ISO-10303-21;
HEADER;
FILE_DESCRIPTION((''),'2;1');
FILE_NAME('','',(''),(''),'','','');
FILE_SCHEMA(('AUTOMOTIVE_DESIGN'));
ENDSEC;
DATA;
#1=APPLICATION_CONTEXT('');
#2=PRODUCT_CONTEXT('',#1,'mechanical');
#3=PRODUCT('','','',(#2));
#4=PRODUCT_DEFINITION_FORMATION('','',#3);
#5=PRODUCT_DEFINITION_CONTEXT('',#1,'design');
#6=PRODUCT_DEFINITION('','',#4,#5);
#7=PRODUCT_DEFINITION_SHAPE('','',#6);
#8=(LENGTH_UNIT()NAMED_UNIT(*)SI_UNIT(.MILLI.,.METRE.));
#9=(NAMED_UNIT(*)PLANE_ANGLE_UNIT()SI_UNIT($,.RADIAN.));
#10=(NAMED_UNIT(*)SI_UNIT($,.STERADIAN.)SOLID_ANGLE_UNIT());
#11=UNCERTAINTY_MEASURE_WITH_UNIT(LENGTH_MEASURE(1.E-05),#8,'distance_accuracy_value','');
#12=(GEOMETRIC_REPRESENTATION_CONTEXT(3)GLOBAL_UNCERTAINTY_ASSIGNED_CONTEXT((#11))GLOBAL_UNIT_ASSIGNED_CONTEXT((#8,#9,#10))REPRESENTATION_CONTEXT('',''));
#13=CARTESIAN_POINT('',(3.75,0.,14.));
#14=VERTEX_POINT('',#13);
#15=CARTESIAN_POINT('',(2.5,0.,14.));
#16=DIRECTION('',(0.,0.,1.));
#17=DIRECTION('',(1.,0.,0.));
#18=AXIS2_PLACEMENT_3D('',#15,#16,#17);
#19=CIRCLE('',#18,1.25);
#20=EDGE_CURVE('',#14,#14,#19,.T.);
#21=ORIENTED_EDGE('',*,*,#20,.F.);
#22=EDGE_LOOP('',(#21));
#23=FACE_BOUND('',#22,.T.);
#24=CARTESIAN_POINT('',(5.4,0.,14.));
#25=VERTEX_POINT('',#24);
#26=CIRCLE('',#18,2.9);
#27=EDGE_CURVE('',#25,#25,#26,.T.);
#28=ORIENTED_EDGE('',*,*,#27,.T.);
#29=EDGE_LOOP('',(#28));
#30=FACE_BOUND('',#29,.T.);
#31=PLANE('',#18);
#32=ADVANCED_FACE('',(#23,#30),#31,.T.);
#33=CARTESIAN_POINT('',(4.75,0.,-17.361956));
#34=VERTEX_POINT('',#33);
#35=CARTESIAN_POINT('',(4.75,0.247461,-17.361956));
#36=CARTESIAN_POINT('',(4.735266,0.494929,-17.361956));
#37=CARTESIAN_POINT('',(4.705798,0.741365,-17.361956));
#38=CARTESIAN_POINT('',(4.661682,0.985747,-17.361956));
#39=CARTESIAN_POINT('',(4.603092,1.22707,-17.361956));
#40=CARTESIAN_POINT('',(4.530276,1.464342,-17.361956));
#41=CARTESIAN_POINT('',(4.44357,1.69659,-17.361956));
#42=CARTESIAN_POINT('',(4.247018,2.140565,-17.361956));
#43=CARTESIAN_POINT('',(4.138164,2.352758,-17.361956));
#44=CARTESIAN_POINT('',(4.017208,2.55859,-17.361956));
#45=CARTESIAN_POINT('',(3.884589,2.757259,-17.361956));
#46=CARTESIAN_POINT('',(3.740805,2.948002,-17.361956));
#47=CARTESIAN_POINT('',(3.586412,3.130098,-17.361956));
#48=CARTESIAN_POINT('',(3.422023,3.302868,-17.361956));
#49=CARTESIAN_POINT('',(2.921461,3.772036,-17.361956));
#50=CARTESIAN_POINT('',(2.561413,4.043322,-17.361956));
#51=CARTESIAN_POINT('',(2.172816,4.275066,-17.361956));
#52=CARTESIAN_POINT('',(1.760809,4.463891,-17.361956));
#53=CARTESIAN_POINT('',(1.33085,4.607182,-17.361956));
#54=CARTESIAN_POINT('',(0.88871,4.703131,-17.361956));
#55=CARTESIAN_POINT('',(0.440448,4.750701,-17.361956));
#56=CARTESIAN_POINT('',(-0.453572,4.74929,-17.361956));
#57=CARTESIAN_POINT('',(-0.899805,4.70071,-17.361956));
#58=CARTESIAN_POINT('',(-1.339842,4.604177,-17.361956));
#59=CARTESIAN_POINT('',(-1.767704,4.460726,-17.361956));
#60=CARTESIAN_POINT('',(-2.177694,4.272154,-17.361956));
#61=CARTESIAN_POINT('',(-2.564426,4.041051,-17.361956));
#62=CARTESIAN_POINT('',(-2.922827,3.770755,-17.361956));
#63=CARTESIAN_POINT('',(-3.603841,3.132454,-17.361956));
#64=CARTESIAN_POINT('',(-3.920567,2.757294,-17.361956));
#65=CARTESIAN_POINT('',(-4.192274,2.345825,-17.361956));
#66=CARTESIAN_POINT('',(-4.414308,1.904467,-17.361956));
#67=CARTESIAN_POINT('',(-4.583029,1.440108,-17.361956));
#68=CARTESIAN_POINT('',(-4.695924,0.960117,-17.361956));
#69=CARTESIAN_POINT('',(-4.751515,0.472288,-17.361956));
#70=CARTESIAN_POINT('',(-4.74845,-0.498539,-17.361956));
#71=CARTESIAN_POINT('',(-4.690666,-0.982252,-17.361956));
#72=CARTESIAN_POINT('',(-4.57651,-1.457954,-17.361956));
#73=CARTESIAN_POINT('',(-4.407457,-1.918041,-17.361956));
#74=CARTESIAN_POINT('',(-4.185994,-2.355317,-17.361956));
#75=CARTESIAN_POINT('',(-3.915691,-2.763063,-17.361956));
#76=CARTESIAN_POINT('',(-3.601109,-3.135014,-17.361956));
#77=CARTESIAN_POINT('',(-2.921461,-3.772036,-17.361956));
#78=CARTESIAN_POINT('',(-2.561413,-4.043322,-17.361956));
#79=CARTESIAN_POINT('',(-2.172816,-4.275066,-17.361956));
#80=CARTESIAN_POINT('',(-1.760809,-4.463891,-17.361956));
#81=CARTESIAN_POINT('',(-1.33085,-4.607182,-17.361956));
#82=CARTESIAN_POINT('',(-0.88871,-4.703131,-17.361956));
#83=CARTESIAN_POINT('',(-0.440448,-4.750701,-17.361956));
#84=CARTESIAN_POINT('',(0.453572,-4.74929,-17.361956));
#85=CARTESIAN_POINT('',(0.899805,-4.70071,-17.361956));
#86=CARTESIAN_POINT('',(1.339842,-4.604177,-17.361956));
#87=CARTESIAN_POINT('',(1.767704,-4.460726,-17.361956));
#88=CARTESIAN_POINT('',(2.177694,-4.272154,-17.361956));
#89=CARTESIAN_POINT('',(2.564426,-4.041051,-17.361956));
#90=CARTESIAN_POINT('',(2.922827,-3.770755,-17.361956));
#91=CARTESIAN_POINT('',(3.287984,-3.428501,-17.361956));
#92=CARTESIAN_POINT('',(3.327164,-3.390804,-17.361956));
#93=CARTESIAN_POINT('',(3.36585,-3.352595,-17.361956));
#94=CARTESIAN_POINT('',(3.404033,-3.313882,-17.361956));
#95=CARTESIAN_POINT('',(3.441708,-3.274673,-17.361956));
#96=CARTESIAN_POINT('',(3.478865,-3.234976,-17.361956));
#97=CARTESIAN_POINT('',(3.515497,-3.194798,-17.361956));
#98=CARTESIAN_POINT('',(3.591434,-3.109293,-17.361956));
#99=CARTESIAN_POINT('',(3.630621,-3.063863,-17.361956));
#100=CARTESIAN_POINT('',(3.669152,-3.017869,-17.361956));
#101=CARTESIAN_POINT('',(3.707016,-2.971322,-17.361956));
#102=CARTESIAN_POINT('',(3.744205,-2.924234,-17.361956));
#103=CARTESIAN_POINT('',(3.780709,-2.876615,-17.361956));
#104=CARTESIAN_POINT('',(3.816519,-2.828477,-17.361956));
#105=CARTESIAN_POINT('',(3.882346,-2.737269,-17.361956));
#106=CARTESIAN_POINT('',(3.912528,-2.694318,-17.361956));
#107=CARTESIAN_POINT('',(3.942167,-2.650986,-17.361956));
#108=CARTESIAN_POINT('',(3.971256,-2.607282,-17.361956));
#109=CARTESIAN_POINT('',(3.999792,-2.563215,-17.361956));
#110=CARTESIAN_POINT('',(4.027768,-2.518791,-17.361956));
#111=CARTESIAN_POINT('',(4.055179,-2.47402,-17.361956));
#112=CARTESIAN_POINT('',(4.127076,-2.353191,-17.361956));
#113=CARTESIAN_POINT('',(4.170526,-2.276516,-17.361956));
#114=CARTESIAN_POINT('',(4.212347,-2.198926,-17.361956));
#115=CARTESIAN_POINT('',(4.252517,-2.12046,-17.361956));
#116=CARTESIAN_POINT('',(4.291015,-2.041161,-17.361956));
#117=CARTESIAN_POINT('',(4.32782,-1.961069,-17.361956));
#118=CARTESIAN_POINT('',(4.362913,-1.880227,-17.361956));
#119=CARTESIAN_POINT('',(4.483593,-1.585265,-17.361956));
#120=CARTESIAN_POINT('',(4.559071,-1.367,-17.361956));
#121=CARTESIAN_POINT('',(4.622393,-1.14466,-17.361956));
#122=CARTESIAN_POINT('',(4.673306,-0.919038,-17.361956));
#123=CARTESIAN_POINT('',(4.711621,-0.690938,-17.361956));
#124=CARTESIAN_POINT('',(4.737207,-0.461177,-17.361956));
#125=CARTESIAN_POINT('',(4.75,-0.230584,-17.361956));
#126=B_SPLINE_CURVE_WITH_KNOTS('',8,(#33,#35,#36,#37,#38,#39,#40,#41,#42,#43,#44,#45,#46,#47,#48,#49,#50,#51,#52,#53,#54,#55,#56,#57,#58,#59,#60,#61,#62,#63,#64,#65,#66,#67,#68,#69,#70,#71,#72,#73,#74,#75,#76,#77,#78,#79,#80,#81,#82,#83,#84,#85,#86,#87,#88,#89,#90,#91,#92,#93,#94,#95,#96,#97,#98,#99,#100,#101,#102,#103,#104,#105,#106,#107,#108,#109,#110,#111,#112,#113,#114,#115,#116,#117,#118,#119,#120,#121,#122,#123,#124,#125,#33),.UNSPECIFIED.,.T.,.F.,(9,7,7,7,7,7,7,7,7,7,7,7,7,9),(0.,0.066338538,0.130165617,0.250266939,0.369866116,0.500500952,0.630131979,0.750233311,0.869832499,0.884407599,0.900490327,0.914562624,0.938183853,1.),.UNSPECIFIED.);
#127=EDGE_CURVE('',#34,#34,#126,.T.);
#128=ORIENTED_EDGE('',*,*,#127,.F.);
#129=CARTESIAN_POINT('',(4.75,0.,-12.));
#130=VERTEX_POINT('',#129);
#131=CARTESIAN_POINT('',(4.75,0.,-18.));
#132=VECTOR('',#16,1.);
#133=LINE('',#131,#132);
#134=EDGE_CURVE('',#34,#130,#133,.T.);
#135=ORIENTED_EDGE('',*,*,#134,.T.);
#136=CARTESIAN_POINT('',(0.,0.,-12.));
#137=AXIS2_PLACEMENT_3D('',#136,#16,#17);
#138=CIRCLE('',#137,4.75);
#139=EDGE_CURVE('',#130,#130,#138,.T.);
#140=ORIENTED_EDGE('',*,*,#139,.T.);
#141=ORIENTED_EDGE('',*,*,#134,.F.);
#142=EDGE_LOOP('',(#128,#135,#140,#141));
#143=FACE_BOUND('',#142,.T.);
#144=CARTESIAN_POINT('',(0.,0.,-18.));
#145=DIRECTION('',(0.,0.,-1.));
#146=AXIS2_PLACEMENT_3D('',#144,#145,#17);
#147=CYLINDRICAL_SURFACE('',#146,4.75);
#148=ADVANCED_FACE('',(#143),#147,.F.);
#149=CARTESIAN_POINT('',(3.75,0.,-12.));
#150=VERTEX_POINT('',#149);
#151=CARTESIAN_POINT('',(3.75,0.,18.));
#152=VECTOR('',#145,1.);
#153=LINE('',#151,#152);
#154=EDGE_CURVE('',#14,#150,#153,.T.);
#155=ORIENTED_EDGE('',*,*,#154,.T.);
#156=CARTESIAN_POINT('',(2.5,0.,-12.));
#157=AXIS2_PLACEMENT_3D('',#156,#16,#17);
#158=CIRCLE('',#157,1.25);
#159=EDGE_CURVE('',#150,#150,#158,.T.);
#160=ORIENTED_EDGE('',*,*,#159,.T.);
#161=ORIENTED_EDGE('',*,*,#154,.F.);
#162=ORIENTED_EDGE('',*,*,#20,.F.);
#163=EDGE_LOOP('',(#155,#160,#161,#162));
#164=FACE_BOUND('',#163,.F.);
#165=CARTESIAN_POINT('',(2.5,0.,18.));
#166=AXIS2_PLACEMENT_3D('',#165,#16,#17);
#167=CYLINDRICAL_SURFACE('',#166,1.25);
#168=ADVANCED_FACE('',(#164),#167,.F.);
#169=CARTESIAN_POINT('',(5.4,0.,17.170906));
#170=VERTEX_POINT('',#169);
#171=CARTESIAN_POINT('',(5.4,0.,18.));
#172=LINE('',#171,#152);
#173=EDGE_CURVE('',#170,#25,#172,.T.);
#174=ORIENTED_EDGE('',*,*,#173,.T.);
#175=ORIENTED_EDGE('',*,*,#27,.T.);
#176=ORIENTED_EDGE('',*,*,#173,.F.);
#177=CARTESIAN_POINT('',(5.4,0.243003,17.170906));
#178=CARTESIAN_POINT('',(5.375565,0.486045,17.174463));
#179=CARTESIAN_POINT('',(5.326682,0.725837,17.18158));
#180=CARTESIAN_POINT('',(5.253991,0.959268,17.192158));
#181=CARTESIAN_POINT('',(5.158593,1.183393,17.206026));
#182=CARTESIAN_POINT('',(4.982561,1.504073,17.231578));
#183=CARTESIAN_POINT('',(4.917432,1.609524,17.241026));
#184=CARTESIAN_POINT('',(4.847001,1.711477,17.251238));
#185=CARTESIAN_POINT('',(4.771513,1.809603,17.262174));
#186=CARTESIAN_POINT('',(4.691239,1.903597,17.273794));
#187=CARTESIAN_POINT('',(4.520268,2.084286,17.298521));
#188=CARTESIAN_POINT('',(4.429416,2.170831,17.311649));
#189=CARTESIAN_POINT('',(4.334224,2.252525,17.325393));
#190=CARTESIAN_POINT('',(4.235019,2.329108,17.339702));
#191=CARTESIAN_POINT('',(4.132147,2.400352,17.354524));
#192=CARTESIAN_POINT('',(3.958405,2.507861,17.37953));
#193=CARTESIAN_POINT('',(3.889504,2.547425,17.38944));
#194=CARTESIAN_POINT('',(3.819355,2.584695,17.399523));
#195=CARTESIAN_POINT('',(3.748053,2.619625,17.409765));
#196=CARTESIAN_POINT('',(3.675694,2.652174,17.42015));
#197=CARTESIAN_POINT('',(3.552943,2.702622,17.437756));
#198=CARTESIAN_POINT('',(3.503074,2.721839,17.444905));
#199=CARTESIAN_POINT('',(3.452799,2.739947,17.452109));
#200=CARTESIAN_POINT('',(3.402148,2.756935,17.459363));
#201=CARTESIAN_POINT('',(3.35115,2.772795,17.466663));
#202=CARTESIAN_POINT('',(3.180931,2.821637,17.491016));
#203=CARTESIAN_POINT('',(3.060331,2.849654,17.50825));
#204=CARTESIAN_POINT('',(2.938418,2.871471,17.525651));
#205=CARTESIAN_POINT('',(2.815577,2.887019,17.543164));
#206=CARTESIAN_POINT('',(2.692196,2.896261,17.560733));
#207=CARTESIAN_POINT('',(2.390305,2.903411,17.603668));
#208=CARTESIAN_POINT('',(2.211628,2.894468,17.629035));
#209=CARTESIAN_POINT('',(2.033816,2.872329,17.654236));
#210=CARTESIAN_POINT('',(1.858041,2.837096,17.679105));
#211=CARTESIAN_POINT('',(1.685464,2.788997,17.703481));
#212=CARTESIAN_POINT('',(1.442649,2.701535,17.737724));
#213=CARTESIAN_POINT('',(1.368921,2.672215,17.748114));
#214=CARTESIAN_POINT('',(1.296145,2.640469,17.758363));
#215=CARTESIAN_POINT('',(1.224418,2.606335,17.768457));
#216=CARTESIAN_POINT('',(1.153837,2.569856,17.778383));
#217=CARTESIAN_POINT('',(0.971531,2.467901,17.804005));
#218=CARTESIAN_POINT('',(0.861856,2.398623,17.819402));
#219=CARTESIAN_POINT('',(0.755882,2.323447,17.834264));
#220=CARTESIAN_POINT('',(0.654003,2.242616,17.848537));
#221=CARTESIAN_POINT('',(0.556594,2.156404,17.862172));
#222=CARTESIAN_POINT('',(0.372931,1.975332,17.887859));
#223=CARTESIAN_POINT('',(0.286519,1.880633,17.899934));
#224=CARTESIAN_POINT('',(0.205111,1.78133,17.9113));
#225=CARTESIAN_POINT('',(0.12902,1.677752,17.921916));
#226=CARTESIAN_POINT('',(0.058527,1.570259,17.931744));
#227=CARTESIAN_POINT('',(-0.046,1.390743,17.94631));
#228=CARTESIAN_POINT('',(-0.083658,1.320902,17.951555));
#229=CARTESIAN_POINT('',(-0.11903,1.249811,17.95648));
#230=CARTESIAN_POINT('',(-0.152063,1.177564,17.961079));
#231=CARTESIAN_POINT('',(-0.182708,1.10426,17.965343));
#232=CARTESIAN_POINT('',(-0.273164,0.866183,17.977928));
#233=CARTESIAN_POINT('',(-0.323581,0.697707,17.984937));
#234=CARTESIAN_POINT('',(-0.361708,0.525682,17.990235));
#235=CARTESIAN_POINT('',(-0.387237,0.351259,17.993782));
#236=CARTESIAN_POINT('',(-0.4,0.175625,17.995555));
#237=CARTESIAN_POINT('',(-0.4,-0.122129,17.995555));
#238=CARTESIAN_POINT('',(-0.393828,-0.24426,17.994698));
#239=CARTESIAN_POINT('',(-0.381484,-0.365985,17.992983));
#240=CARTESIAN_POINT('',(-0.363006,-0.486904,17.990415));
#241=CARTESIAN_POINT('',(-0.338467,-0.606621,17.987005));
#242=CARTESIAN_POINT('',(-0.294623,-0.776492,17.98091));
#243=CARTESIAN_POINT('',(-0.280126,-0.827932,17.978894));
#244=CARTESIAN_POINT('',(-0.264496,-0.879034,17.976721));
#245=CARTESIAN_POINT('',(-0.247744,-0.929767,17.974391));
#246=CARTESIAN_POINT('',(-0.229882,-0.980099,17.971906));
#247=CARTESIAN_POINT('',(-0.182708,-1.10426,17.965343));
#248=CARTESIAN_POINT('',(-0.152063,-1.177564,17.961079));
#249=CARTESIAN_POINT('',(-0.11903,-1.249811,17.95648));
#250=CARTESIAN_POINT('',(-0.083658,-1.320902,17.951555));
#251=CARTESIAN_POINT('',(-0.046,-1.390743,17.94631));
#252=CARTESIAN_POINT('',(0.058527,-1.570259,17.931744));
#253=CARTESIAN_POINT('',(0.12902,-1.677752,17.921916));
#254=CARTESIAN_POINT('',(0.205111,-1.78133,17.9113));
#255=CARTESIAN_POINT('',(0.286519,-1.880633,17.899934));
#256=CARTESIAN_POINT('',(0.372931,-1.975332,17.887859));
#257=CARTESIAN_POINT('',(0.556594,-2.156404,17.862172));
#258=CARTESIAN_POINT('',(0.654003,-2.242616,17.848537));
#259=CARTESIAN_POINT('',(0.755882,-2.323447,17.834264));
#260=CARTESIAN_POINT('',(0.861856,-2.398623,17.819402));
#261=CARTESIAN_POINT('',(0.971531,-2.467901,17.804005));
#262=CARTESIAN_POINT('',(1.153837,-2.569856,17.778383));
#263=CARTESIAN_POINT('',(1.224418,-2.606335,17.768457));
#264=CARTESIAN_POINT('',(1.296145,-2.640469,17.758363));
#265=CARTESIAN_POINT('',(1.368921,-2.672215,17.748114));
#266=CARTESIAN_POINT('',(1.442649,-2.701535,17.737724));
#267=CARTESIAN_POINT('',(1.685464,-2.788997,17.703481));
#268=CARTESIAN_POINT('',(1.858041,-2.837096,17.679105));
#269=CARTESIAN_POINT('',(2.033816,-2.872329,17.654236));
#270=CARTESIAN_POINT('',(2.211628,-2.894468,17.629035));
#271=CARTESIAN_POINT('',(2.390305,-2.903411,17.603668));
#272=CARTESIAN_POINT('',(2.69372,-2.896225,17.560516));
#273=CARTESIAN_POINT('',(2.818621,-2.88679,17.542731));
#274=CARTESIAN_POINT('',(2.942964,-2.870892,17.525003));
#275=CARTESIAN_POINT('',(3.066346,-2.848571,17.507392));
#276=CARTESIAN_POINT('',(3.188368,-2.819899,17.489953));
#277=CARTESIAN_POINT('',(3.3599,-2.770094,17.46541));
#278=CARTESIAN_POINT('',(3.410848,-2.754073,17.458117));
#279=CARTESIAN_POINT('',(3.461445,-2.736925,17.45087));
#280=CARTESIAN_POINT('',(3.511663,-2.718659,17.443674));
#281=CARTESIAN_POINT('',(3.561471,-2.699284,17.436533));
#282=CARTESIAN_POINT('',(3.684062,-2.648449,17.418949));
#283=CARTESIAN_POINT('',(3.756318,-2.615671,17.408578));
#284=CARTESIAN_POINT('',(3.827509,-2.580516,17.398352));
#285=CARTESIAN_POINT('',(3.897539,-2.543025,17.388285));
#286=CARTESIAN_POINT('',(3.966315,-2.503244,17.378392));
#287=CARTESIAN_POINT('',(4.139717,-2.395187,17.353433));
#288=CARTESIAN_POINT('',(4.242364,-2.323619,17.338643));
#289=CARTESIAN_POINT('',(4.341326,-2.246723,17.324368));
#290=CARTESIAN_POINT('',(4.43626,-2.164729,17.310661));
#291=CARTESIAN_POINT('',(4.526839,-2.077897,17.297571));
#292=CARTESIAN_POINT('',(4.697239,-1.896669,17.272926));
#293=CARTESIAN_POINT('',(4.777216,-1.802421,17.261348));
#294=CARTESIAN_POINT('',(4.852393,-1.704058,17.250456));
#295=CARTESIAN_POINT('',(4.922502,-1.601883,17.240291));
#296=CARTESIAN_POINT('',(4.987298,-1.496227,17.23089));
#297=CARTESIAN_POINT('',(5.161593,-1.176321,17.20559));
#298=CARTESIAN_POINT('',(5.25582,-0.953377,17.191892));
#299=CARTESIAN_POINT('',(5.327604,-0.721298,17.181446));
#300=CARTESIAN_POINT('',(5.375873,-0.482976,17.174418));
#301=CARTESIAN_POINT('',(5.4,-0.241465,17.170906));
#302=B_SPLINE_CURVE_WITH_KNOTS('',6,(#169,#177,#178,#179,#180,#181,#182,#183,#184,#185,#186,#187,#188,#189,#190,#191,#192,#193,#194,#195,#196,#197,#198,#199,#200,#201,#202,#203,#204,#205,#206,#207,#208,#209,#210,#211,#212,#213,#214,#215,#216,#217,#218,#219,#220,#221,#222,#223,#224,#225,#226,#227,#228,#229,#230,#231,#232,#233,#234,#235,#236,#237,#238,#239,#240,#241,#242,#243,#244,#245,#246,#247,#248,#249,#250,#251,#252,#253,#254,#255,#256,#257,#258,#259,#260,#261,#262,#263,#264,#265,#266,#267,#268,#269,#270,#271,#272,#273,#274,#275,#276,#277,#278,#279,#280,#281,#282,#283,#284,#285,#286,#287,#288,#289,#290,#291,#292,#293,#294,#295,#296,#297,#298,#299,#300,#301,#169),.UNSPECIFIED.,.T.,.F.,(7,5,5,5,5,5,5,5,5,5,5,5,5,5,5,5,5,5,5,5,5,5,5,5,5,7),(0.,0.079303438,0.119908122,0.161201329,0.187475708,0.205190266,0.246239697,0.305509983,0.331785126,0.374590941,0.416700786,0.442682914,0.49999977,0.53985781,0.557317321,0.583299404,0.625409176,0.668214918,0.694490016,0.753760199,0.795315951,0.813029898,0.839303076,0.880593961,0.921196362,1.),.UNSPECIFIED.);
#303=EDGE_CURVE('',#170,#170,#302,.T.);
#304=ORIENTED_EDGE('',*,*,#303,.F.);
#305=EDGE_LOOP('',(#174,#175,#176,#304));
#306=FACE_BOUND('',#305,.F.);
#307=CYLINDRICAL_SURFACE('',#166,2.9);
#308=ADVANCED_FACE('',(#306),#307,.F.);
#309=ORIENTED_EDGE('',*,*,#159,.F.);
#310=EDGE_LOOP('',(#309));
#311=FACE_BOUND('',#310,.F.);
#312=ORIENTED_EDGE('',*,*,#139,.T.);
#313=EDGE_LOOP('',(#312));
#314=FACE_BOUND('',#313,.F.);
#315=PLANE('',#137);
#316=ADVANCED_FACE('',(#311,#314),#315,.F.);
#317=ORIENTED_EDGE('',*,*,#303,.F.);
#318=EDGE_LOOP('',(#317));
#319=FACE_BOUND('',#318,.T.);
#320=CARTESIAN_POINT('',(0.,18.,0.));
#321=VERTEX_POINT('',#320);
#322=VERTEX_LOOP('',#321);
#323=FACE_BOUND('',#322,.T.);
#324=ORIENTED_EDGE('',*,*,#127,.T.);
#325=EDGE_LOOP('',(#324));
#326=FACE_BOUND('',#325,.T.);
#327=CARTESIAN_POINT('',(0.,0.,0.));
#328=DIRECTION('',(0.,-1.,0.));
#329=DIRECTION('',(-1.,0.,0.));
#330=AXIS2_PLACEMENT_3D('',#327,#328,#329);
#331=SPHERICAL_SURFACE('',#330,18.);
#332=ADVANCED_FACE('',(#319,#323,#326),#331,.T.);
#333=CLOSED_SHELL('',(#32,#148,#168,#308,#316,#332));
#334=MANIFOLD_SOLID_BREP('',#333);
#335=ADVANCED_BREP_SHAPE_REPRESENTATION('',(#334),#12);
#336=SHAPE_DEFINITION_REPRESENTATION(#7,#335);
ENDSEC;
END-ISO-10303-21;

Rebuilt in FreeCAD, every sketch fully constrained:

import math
import FreeCAD as App
import Part
import Sketcher
from FreeCAD import Vector

doc = App.newDocument("Part")
body = doc.addObject("PartDesign::Body", "Body")

sketch1 = body.newObject("Sketcher::SketchObject", "Sketch")
sketch1.AttachmentSupport = (doc.getObject("XY_Plane"), [""])
sketch1.MapMode = "FlatFace"
sketch1.addGeometry([
    Part.LineSegment(Vector(0, -18, 0), Vector(0, 18, 0)),
    Part.ArcOfCircle(Part.Circle(Vector(0, 0, 0), Vector(0, 0, 1), 18), math.radians(90), math.radians(270)),
], False)
sketch1.addConstraint([
    Sketcher.Constraint("Coincident", 0, 1, 1, 2),
    Sketcher.Constraint("Coincident", 1, 1, 0, 2),
    Sketcher.Constraint("Vertical", 0),
    Sketcher.Constraint("Coincident", 1, 3, -1, 1),
    Sketcher.Constraint("PointOnObject", 0, 1, -2),
    Sketcher.Constraint("Radius", 1, 18.0),
])
revolution = body.newObject("PartDesign::Revolution", "Revolution")
revolution.Profile = sketch1
revolution.ReferenceAxis = (sketch1, ["V_Axis"])
revolution.Angle = 360

sketch2 = body.newObject("Sketcher::SketchObject", "Sketch001")
sketch2.AttachmentSupport = (doc.getObject("XY_Plane"), [""])
sketch2.MapMode = "FlatFace"
sketch2.AttachmentOffset = App.Placement(Vector(0, 0, 18), App.Rotation())
sketch2.addGeometry(Part.Circle(Vector(2.5, 0, 0), Vector(0, 0, 1), 1.25), False)
sketch2.addConstraint([
    Sketcher.Constraint("PointOnObject", 0, 3, -1),
    Sketcher.Constraint("Diameter", 0, 2.5),
    Sketcher.Constraint("DistanceX", -1, 1, 0, 3, 2.5),
])
pocket1 = body.newObject("PartDesign::Pocket", "Pocket")
pocket1.Profile = sketch2
pocket1.Type = "ThroughAll"

sketch3 = body.newObject("Sketcher::SketchObject", "Sketch002")
sketch3.AttachmentSupport = (doc.getObject("XY_Plane"), [""])
sketch3.MapMode = "FlatFace"
sketch3.AttachmentOffset = App.Placement(Vector(0, 0, -18), App.Rotation())
sketch3.addGeometry([
    Part.Circle(Vector(0, 0, 0), Vector(0, 0, 1), 4.75),
    Part.Circle(Vector(2.5, 0, 0), Vector(0, 0, 1), 1.25),
], False)
sketch3.addConstraint([
    Sketcher.Constraint("Coincident", 0, 3, -1, 1),
    Sketcher.Constraint("PointOnObject", 1, 3, -1),
    Sketcher.Constraint("Diameter", 0, 9.5),
    Sketcher.Constraint("Diameter", 1, 2.5),
    Sketcher.Constraint("DistanceX", -1, 1, 1, 3, 2.5),
])
pocket2 = body.newObject("PartDesign::Pocket", "Pocket001")
pocket2.Profile = sketch3
pocket2.Length = 6
pocket2.Reversed = True

sketch4 = body.newObject("Sketcher::SketchObject", "Sketch003")
sketch4.AttachmentSupport = (doc.getObject("XY_Plane"), [""])
sketch4.MapMode = "FlatFace"
sketch4.AttachmentOffset = App.Placement(Vector(0, 0, 18), App.Rotation())
sketch4.addGeometry(Part.Circle(Vector(2.5, 0, 0), Vector(0, 0, 1), 2.9), False)
sketch4.addConstraint([
    Sketcher.Constraint("PointOnObject", 0, 3, -1),
    Sketcher.Constraint("Diameter", 0, 5.8),
    Sketcher.Constraint("DistanceX", -1, 1, 0, 3, 2.5),
])
pocket3 = body.newObject("PartDesign::Pocket", "Pocket002")
pocket3.Profile = sketch4
pocket3.Length = 4

doc.recompute()
